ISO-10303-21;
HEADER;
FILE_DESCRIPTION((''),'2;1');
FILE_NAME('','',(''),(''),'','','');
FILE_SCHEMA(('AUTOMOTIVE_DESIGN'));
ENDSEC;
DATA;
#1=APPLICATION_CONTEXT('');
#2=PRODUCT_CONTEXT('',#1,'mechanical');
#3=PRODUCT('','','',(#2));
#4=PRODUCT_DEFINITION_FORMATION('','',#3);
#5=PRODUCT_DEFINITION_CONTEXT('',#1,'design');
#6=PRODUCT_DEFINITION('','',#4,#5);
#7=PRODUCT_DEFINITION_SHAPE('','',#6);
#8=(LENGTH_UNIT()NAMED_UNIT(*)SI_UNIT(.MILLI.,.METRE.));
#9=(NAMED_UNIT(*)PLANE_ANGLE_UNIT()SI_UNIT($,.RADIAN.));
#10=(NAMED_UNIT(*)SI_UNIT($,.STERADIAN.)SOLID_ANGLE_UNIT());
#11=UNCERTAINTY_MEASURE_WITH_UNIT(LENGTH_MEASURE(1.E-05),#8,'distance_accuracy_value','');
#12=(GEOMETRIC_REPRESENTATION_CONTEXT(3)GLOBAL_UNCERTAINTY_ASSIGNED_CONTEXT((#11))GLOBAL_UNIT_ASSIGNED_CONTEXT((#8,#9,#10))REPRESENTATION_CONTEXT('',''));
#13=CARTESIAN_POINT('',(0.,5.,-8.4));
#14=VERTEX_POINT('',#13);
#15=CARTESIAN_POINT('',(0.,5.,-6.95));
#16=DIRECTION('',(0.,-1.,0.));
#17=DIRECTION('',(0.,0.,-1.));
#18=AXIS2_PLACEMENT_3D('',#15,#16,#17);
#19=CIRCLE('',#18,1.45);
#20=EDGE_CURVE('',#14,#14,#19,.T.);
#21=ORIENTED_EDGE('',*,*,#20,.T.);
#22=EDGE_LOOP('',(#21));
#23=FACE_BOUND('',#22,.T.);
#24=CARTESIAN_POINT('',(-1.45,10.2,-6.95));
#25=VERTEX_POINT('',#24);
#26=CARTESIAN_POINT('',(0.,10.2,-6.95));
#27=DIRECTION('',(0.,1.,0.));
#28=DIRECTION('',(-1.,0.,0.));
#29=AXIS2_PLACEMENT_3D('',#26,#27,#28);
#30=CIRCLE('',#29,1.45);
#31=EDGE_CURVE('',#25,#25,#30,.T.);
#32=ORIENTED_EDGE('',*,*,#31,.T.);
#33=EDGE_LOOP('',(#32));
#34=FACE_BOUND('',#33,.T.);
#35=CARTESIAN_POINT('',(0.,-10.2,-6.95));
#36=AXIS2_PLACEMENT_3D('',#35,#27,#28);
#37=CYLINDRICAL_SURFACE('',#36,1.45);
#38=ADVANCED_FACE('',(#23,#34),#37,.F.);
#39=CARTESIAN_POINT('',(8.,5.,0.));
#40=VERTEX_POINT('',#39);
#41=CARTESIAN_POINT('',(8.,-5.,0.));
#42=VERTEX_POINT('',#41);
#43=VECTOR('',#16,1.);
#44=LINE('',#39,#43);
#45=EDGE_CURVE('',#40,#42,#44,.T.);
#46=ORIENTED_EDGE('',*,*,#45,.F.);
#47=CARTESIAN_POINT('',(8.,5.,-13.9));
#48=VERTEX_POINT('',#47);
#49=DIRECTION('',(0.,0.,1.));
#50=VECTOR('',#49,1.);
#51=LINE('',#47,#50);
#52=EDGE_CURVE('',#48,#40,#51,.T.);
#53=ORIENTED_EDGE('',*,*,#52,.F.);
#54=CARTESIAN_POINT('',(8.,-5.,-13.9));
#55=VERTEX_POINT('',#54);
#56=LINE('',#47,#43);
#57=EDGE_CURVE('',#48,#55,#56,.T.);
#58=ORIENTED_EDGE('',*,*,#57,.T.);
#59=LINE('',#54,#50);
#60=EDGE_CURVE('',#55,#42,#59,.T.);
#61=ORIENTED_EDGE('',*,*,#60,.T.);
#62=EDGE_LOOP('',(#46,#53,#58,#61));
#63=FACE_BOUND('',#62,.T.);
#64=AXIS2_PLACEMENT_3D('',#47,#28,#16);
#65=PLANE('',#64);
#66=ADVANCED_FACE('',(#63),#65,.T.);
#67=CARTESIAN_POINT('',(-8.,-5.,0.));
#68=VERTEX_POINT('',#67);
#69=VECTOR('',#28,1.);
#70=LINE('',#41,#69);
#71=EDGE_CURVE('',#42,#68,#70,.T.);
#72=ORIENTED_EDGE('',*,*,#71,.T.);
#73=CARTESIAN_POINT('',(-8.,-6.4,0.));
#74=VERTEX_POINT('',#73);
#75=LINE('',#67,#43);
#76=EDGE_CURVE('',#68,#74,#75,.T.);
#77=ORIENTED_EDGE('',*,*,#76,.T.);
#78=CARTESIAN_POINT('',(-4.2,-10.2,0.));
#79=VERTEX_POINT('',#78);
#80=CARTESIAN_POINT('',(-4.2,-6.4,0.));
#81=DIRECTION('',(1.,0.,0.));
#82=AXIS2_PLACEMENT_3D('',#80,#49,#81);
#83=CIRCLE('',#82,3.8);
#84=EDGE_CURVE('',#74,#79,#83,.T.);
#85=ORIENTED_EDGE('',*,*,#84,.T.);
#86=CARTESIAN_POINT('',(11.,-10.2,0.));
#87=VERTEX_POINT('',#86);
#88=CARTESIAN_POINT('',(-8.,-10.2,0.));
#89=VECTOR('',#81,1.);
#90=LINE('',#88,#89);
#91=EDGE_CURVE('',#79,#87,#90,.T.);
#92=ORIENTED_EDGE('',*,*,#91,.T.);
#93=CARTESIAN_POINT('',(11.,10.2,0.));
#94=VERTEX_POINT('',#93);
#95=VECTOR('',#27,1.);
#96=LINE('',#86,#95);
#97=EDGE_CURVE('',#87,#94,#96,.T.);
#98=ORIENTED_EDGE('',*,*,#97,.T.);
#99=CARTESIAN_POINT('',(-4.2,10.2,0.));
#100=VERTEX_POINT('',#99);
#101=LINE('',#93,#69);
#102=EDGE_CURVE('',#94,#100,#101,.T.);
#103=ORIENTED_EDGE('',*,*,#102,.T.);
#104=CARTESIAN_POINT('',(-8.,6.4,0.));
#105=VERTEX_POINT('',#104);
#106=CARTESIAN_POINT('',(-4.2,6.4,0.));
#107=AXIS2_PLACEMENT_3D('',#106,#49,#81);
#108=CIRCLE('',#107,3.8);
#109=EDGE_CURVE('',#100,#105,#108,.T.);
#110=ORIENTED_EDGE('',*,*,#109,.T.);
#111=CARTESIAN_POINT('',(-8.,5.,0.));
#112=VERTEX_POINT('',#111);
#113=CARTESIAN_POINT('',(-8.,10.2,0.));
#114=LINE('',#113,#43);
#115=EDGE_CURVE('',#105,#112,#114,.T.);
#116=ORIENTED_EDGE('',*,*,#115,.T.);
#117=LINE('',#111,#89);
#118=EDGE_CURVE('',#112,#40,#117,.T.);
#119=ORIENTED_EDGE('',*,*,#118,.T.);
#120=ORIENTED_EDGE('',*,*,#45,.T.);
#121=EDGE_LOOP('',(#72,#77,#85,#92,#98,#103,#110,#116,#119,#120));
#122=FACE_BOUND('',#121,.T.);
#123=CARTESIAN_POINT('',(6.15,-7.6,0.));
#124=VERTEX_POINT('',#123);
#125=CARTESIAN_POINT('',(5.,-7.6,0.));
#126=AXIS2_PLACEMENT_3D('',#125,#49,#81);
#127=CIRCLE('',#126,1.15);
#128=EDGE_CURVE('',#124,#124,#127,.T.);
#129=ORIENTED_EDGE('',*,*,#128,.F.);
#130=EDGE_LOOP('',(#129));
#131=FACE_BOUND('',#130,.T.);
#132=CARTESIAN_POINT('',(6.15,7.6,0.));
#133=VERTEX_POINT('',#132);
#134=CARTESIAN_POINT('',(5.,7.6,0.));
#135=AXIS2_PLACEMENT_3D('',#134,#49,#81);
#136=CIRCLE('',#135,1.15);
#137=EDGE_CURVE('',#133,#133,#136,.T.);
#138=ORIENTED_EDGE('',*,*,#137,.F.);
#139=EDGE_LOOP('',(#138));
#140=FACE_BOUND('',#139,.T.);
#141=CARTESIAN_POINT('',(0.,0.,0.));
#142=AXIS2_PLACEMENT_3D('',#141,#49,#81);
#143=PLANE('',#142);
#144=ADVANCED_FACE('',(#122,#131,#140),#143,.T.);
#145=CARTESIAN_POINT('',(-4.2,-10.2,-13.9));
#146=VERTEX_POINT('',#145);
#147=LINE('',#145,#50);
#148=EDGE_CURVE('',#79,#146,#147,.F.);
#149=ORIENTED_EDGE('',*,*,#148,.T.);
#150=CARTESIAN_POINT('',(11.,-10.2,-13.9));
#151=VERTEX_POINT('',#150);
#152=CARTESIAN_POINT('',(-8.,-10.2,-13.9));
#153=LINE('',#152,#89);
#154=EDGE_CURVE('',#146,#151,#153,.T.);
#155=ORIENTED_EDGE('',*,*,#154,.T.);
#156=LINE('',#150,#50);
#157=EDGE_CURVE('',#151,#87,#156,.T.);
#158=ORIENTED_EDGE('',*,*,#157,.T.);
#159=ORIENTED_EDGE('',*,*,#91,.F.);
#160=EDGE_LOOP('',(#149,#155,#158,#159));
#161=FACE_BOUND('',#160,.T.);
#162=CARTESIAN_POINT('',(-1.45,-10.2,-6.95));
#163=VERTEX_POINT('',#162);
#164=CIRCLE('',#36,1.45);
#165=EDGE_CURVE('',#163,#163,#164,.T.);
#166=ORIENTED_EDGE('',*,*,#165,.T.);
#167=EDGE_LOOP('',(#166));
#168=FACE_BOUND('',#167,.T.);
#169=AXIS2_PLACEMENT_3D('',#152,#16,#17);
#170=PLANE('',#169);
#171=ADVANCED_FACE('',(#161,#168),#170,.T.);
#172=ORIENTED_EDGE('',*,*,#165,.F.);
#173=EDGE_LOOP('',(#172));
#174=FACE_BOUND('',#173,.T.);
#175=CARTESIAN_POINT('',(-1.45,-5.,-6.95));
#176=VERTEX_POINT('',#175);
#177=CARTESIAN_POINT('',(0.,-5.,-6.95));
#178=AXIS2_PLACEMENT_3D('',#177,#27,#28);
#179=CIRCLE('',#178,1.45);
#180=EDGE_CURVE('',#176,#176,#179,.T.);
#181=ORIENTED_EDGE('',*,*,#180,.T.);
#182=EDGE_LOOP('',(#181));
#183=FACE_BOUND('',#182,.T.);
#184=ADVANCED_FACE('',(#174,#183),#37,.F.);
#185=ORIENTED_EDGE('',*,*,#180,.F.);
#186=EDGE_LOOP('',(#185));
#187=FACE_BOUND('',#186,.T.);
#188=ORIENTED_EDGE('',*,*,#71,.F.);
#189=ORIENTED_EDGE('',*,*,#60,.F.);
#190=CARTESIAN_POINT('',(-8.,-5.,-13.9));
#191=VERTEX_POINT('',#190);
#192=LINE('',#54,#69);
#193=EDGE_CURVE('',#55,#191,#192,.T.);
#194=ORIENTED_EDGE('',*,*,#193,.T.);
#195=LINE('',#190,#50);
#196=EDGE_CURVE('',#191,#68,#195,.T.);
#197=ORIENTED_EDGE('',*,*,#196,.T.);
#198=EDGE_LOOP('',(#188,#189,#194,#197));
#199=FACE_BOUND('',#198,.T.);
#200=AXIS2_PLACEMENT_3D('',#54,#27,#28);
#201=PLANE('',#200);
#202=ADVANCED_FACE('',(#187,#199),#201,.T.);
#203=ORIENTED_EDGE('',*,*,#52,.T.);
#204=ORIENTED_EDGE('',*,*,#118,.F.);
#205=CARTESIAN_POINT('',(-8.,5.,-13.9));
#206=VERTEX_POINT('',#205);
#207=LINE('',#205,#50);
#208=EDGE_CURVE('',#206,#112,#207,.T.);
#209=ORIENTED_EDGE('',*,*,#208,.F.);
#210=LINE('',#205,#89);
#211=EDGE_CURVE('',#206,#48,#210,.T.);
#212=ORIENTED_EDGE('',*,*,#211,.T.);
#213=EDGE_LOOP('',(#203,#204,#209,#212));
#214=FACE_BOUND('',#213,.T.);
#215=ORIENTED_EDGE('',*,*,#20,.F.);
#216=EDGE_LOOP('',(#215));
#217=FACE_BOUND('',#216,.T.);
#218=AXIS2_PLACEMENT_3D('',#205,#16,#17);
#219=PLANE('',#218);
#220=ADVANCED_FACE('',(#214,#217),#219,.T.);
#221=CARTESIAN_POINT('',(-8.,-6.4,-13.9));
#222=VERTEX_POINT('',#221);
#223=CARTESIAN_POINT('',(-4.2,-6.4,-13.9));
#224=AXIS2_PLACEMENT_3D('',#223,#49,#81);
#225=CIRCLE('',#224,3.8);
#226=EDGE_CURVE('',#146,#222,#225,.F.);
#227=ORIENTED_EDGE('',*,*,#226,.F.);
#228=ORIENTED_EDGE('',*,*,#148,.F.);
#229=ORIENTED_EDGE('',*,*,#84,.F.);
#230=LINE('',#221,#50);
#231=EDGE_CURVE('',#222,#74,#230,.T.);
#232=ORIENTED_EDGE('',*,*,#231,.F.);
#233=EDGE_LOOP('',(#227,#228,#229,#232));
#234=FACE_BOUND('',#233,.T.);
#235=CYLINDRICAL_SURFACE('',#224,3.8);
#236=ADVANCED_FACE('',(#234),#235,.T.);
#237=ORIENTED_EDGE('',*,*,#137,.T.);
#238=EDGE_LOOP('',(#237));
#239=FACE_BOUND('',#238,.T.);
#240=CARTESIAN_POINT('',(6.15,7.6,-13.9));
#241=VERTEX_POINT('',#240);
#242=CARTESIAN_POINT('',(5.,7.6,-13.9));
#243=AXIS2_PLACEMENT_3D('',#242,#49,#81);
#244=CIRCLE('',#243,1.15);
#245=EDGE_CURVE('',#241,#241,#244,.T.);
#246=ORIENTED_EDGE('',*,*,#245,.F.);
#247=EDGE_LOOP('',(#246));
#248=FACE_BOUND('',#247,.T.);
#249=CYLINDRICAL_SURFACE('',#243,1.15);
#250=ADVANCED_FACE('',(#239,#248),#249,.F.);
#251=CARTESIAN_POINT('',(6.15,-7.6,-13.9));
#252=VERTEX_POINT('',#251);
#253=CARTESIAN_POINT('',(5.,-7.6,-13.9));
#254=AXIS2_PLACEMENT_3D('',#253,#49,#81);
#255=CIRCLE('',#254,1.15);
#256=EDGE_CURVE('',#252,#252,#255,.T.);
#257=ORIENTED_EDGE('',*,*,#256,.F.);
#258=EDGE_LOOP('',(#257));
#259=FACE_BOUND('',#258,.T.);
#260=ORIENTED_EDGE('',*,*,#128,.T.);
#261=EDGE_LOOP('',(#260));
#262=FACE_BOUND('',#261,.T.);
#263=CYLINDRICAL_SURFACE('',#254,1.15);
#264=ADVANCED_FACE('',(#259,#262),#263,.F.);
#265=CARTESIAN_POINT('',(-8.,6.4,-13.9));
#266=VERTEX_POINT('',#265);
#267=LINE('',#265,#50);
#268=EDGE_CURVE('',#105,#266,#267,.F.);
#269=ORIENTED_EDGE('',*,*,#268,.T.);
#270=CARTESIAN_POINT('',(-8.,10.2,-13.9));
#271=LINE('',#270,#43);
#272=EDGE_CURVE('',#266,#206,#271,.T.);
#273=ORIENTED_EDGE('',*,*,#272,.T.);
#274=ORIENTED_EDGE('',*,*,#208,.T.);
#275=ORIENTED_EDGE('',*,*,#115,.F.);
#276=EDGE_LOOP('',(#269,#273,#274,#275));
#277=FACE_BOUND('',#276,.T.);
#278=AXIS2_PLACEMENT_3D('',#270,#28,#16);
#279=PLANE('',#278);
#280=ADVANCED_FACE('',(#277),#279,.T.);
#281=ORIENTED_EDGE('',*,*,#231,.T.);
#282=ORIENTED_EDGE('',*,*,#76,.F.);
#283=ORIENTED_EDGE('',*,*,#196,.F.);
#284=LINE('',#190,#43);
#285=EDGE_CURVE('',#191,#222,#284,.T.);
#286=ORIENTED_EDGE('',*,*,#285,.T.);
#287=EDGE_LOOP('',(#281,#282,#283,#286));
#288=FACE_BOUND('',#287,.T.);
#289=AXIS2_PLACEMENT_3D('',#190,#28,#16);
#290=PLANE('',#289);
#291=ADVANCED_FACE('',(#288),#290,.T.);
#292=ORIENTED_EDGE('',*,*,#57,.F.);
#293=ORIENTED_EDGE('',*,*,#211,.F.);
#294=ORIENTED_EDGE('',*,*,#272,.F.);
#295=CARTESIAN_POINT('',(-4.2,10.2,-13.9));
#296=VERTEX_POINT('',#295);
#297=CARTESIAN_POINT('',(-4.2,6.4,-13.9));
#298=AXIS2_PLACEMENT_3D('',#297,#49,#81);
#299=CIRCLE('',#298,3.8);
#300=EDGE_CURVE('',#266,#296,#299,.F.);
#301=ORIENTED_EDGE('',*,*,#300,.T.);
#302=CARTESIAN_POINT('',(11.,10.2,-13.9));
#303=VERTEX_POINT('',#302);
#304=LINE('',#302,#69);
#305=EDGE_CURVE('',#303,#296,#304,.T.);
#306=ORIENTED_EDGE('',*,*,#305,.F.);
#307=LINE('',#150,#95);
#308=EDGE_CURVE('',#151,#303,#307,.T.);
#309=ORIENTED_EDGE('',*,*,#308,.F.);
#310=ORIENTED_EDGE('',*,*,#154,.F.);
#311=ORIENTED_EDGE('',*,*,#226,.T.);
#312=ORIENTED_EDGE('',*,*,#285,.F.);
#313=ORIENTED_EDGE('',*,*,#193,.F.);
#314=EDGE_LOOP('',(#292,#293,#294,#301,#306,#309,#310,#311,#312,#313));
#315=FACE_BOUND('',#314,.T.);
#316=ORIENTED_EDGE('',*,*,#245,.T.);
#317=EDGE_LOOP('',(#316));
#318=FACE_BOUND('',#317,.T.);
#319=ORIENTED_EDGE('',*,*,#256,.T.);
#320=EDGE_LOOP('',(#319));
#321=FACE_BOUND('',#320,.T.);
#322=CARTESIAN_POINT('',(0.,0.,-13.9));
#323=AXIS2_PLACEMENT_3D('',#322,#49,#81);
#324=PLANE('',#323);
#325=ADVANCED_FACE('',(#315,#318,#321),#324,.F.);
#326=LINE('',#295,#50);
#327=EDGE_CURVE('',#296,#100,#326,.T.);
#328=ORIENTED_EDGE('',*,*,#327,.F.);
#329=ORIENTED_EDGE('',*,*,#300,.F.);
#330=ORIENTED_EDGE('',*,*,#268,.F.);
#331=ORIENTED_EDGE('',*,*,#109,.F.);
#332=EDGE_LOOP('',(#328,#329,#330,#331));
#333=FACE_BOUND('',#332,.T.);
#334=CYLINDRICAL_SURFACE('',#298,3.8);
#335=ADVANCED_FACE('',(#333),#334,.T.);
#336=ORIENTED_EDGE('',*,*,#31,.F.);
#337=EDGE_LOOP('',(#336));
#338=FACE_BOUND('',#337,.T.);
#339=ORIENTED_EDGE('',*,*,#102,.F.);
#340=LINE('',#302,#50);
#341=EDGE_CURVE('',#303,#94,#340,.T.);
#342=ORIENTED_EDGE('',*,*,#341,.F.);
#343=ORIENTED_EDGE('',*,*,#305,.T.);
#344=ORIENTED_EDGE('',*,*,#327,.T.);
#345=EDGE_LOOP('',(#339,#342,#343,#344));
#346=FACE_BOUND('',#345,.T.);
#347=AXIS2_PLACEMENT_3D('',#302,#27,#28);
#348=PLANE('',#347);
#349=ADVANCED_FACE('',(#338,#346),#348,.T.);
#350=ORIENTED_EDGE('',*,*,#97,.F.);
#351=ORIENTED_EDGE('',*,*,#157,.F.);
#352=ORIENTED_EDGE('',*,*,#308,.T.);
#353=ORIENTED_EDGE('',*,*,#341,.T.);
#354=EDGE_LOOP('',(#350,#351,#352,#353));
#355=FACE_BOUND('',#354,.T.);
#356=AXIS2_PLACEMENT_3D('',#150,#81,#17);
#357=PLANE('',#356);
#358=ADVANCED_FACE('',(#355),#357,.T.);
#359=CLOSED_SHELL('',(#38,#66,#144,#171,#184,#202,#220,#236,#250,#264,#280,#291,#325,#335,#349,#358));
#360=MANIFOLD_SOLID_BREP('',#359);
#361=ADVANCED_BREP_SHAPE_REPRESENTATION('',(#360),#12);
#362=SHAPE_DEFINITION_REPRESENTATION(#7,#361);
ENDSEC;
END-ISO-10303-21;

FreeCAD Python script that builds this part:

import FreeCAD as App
import Part
import Sketcher

V = App.Vector


def edges_at(feature, points):
    """Names of the edges that pass closest to the given points."""
    edges = feature.Shape.Edges
    near = lambda p: min(range(len(edges)), key=lambda i: edges[i].distToShape(Part.Vertex(*p))[0])
    return sorted({f"Edge{near(p) + 1}" for p in points})

doc = App.newDocument("Part")
body = doc.addObject("PartDesign::Body", "Body")

# Sketch on XY plane
sketch1 = doc.addObject("Sketcher::SketchObject", "Sketch")
body.addObject(sketch1)
sketch1.AttachmentSupport = (doc.XY_Plane, [""])
sketch1.MapMode = "FlatFace"
sketch1.addGeometry([
    Part.LineSegment(V(-8, 10, 0), V(-8, 5, 0)),  # 0
    Part.LineSegment(V(-8, 5, 0), V(8, 5, 0)),  # 1
    Part.LineSegment(V(8, 5, 0), V(8, -5, 0)),  # 2
    Part.LineSegment(V(8, -5, 0), V(-8, -5, 0)),  # 3
    Part.LineSegment(V(-8, -5, 0), V(-8, -10, 0)),  # 4
    Part.LineSegment(V(-8, -10, 0), V(11, -10, 0)),  # 5
    Part.LineSegment(V(11, -10, 0), V(11, 10, 0)),  # 6
    Part.LineSegment(V(11, 10, 0), V(-8, 10, 0)),  # 7
], False)
sketch1.addConstraint([
    Sketcher.Constraint("Coincident", 0, 2, 1, 1),
    Sketcher.Constraint("Coincident", 1, 2, 2, 1),
    Sketcher.Constraint("Coincident", 2, 2, 3, 1),
    Sketcher.Constraint("Coincident", 3, 2, 4, 1),
    Sketcher.Constraint("Coincident", 4, 2, 5, 1),
    Sketcher.Constraint("Coincident", 5, 2, 6, 1),
    Sketcher.Constraint("Coincident", 6, 2, 7, 1),
    Sketcher.Constraint("Coincident", 7, 2, 0, 1),
    Sketcher.Constraint("Vertical", 0),
    Sketcher.Constraint("Horizontal", 1),
    Sketcher.Constraint("Vertical", 2),
    Sketcher.Constraint("Horizontal", 3),
    Sketcher.Constraint("Vertical", 4),
    Sketcher.Constraint("Horizontal", 5),
    Sketcher.Constraint("Vertical", 6),
    Sketcher.Constraint("Horizontal", 7),
    Sketcher.Constraint("Symmetric", 0, 2, 2, 2, -1, 1),
    Sketcher.Constraint("Symmetric", 4, 2, 7, 2, -1),
    Sketcher.Constraint("DistanceX", 1, 1, 1, 2, 16.0),
    Sketcher.Constraint("DistanceX", 5, 1, 5, 2, 19.0),
    Sketcher.Constraint("DistanceY", 2, 2, 2, 1, 10.0),
    Sketcher.Constraint("DistanceY", 0, 2, 0, 1, 5.2),
])
pad1 = doc.addObject("PartDesign::Pad", "Pad")
body.addObject(pad1)
pad1.Profile = sketch1
pad1.Length = 13.9
pad1.Reversed = True

# Sketch on XY plane
sketch2 = doc.addObject("Sketcher::SketchObject", "Sketch001")
body.addObject(sketch2)
sketch2.AttachmentSupport = (doc.XY_Plane, [""])
sketch2.MapMode = "FlatFace"
sketch2.addGeometry([
    Part.Circle(V(5, 7.6, 0), V(0, 0, 1), 1.1),
    Part.Circle(V(5, -7.6, 0), V(0, 0, 1), 1.1),
], False)
sketch2.addConstraint([
    Sketcher.Constraint("Equal", 0, 1),
    Sketcher.Constraint("Symmetric", 0, 3, 1, 3, -1),
    Sketcher.Constraint("Diameter", 0, 2.3),
    Sketcher.Constraint("DistanceX", -1, 1, 0, 3, 5.0),
    Sketcher.Constraint("DistanceY", -1, 1, 0, 3, 7.6),
])
pocket1 = doc.addObject("PartDesign::Pocket", "Pocket")
body.addObject(pocket1)
pocket1.Profile = sketch2
pocket1.Type = "ThroughAll"
pocket1.Midplane = True

# Sketch on XZ plane
sketch3 = doc.addObject("Sketcher::SketchObject", "Sketch002")
body.addObject(sketch3)
sketch3.AttachmentSupport = (doc.XZ_Plane, [""])
sketch3.MapMode = "FlatFace"
sketch3.AttachmentOffset = App.Placement(V(0, 0, -10.2), App.Rotation())
sketch3.addGeometry(Part.Circle(V(0, -7, 0), V(0, 0, 1), 1.4), False)
sketch3.addConstraint([
    Sketcher.Constraint("PointOnObject", 0, 3, -2),
    Sketcher.Constraint("Diameter", 0, 2.9),
    Sketcher.Constraint("DistanceY", 0, 3, -1, 1, 6.95),
])
pocket2 = doc.addObject("PartDesign::Pocket", "Pocket001")
body.addObject(pocket2)
pocket2.Profile = sketch3
pocket2.Type = "ThroughAll"
pocket2.Reversed = True
doc.recompute()

fillet = doc.addObject("PartDesign::Fillet", "Fillet")
body.addObject(fillet)
fillet.Base = (pocket2, edges_at(pocket2, [(-8, -10.2, -6.95), (-8, 10.2, -6.95)]))
fillet.Radius = 3.8

doc.recompute()
